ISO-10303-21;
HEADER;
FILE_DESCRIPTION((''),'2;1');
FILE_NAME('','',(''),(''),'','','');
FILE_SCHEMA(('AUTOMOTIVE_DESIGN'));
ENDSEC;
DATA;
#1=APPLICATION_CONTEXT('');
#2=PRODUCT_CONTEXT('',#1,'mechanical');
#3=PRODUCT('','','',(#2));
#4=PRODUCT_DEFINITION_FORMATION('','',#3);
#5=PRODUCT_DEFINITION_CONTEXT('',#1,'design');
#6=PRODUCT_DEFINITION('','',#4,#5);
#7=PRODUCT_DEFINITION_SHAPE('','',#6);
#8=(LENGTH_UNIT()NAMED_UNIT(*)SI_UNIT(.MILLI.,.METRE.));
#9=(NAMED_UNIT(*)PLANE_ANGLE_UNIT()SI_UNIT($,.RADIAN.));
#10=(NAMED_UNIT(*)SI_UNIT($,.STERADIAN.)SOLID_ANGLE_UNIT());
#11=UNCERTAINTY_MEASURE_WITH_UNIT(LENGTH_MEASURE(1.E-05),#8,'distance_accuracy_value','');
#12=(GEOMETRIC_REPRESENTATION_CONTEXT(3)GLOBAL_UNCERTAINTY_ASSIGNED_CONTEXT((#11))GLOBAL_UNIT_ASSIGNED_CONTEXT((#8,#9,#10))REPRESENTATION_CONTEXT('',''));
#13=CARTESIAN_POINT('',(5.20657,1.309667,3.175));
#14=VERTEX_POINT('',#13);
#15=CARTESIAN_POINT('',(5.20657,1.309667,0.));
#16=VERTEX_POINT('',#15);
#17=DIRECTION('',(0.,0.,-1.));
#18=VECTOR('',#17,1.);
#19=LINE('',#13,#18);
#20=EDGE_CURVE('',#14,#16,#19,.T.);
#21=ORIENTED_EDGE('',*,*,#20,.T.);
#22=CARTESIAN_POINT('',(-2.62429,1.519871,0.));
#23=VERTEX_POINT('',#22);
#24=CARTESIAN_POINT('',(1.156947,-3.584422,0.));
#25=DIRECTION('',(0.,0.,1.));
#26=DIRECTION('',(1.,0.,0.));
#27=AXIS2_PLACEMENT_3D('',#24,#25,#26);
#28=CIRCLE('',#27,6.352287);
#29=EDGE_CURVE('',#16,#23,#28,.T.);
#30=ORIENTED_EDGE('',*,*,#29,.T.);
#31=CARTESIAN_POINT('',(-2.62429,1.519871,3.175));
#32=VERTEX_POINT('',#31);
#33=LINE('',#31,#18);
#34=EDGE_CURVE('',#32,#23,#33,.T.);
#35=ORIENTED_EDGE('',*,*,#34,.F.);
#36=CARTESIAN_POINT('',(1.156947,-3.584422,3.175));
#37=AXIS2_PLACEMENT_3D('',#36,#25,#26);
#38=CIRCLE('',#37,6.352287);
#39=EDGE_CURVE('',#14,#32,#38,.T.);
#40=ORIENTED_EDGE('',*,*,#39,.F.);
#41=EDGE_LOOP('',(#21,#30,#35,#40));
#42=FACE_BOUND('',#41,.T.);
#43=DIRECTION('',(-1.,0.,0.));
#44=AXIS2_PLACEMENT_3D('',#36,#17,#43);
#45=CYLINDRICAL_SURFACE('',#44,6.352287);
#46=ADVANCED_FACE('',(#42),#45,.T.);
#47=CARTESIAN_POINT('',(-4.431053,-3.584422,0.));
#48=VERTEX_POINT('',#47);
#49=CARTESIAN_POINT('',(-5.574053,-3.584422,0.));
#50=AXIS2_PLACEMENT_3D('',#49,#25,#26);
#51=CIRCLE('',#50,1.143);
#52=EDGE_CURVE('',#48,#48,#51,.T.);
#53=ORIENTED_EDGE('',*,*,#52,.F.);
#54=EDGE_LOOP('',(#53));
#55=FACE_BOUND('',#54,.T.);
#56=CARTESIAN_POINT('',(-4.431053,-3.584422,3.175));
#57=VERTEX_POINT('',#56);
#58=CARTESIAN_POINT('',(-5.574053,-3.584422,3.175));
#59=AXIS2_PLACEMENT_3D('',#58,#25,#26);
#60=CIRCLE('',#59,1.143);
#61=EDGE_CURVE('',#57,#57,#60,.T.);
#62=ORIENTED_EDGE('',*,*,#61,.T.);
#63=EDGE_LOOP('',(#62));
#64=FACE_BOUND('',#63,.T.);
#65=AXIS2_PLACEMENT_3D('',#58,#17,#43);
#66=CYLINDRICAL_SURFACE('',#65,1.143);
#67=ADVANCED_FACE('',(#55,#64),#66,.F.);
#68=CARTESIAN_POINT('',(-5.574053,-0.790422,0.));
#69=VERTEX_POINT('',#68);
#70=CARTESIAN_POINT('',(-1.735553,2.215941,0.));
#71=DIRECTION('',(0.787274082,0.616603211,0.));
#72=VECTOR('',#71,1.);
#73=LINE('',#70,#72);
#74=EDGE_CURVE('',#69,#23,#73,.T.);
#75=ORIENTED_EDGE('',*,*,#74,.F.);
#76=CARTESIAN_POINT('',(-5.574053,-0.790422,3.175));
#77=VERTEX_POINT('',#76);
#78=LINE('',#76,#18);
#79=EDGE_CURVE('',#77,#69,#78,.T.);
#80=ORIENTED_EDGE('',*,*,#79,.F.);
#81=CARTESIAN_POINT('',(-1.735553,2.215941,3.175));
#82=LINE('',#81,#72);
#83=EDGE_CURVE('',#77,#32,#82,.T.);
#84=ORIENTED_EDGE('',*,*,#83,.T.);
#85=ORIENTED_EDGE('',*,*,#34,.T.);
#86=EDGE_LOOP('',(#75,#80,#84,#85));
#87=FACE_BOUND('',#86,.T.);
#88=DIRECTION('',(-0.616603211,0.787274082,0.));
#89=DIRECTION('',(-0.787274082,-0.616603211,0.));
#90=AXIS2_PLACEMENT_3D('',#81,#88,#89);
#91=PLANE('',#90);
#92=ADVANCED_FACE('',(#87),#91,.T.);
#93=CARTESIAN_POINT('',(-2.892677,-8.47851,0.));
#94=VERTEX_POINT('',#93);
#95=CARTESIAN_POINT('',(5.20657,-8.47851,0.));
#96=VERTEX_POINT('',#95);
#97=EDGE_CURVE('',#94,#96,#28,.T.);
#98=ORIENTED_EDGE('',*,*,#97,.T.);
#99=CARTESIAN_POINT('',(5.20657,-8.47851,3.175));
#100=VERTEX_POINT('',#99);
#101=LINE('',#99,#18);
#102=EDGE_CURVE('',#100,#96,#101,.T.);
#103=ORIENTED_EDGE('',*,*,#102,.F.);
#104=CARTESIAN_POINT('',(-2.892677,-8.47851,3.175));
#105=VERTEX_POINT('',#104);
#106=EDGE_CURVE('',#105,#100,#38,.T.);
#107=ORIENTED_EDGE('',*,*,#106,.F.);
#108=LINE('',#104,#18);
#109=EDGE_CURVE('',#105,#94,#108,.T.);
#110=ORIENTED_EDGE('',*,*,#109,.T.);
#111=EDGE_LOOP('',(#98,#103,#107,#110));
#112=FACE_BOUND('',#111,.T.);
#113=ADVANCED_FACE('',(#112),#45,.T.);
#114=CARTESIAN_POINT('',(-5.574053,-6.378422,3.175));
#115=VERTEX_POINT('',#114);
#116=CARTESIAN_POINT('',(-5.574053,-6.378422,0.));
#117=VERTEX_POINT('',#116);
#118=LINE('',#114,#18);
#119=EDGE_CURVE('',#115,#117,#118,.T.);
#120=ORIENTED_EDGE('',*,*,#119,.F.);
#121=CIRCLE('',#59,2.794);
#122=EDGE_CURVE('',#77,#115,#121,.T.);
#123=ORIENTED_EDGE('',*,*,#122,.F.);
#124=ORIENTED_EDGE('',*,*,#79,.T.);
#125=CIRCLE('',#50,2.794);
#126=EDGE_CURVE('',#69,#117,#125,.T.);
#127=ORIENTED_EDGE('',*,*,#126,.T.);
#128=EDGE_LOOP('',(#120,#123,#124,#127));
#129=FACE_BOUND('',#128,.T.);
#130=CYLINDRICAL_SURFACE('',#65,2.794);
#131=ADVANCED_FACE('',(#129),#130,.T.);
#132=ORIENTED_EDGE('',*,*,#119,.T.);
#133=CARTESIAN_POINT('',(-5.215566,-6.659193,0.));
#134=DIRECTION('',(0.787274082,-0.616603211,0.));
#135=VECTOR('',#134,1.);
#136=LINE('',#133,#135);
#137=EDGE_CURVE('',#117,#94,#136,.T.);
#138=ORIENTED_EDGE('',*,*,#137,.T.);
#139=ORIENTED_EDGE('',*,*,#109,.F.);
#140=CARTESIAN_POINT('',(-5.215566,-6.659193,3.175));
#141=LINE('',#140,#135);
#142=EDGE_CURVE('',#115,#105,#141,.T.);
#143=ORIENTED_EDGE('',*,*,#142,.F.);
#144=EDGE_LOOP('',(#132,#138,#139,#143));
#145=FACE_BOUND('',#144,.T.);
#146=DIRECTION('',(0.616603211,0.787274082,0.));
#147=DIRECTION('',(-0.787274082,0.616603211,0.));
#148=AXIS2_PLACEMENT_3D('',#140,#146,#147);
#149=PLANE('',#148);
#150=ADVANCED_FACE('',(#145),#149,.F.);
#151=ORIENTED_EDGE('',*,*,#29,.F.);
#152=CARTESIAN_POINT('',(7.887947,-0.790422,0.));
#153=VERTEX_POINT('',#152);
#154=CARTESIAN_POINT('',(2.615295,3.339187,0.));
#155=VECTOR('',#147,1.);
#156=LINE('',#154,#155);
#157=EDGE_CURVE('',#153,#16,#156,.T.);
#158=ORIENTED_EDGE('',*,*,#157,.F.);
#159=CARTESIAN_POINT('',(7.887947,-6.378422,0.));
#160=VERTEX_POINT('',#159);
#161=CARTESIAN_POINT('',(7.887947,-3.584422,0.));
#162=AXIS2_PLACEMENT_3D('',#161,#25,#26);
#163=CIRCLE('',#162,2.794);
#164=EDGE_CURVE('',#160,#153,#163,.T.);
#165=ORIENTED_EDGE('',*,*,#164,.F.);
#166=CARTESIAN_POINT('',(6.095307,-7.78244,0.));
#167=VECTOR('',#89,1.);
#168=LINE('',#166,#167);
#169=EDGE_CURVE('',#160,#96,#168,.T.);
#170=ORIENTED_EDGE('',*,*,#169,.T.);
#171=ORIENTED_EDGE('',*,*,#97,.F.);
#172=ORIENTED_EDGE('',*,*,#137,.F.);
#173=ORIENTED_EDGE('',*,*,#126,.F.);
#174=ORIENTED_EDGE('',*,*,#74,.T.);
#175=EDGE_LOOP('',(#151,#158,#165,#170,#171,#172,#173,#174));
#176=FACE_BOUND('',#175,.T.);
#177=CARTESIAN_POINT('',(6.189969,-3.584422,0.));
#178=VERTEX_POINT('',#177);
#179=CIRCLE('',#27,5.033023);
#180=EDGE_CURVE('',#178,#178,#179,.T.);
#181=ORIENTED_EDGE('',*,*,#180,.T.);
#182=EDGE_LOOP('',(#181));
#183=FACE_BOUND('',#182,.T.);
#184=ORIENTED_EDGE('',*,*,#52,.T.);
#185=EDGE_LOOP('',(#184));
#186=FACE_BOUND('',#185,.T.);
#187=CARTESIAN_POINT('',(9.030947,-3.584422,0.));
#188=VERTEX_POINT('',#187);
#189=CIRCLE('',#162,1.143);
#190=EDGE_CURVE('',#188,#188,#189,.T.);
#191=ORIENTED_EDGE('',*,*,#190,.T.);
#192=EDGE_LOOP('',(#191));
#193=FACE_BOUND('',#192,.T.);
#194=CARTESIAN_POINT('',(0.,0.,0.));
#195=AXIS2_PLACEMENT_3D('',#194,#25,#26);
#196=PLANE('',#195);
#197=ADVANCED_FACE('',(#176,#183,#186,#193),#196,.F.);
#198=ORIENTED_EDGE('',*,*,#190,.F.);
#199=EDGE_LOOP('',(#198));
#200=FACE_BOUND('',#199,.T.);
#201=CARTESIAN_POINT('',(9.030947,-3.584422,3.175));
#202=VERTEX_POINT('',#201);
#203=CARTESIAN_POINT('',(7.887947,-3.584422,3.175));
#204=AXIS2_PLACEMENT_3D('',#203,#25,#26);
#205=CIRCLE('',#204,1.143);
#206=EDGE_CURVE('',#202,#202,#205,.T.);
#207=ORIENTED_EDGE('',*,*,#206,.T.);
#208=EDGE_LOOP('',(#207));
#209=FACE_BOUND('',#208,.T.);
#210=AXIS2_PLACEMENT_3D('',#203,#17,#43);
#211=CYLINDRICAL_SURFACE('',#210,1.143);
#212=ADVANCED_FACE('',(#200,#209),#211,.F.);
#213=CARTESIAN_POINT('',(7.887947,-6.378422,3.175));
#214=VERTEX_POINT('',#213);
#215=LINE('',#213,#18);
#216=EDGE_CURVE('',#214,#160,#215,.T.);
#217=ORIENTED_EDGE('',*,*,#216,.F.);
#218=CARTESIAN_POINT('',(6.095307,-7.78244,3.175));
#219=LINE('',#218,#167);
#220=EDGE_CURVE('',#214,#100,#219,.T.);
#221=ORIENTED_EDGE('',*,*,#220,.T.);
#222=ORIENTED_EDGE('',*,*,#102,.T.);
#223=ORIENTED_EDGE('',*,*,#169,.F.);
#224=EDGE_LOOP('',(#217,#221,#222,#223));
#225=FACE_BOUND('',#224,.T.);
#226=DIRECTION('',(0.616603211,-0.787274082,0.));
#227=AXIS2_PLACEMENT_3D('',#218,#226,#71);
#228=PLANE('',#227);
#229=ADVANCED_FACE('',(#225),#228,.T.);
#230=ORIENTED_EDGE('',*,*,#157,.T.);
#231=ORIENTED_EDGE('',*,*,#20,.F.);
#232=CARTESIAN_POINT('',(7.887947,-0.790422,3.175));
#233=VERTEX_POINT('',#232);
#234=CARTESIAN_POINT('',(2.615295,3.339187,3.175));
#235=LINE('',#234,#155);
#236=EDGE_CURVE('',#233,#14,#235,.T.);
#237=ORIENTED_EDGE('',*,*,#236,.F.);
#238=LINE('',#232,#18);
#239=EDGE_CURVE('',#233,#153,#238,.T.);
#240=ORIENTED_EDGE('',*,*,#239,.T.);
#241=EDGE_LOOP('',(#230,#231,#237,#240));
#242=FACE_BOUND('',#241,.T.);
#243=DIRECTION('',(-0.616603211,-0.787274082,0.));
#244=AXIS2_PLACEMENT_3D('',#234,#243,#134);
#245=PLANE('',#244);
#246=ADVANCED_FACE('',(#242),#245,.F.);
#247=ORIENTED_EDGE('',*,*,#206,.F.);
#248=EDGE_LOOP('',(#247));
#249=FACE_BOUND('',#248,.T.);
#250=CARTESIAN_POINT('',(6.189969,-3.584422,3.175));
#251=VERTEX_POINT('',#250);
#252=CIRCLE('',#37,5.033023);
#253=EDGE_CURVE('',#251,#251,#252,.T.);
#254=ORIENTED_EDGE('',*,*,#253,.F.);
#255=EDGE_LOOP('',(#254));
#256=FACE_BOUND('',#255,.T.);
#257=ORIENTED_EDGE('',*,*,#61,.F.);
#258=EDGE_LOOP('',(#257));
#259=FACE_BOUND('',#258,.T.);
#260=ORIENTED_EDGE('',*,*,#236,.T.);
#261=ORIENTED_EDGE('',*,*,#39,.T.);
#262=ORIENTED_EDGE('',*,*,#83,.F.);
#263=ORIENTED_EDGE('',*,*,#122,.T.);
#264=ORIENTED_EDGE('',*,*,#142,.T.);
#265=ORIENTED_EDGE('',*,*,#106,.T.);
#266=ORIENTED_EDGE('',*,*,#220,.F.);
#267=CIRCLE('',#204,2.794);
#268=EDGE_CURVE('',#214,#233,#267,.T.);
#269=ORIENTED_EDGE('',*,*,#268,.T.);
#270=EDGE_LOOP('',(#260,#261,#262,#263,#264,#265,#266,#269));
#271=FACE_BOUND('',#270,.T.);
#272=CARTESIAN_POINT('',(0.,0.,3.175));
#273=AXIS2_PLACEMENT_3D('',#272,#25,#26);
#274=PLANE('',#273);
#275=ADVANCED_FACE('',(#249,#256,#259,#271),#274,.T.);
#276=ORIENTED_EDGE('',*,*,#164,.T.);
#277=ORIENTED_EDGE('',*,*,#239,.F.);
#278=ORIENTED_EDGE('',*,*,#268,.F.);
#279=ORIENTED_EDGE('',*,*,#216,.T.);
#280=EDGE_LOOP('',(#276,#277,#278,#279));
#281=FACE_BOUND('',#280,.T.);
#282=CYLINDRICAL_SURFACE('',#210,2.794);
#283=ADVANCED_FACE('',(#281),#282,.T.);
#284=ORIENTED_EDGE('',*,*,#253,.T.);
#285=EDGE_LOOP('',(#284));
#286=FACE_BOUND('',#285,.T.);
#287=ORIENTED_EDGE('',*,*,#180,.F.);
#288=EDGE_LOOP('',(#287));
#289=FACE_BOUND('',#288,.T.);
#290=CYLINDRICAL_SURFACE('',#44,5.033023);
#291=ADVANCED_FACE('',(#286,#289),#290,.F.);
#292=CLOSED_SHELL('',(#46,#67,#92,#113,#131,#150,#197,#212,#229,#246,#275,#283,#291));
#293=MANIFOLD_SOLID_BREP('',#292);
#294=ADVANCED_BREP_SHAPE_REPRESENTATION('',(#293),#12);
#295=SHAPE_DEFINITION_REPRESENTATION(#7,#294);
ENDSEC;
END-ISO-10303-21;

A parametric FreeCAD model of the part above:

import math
import FreeCAD as App
import Part
import Sketcher
from FreeCAD import Vector
Q = App.Units.Quantity

doc = App.newDocument("Part")
params = doc.addObject("Spreadsheet::Sheet", "Params")
for row, (alias, value) in enumerate([
    ("sketch1_diameter", "0.09 in"),
    ("sketch1_radius", "0.11 in"),
    ("pad1_length", "0.125 in"),
], start=1):
    params.set(f"A{row}", alias)
    params.set(f"B{row}", "=" + value)
    params.setAlias(f"B{row}", alias)

body = doc.addObject("PartDesign::Body", "Body")

# Sketch on XY plane
sketch1 = body.newObject("Sketcher::SketchObject", "Sketch")
sketch1.AttachmentSupport = (doc.getObject("XY_Plane"), [""])
sketch1.MapMode = "FlatFace"
sketch1.addGeometry([
    Part.LineSegment(Vector(-2.758484, 1.414769, 0), Vector(-5.574053, -0.790422, 0)),  # 0
    Part.ArcOfCircle(Part.Circle(Vector(-5.574053, -3.584422, 0), Vector(0, 0, 1), 2.794), math.radians(90), math.radians(270)),  # 1
    Part.LineSegment(Vector(-5.574053, -6.378422, 0), Vector(-2.892677, -8.47851, 0)),  # 2
    Part.ArcOfCircle(Part.Circle(Vector(1.156947, -3.584422, 0), Vector(0, 0, 1), 6.352287), math.radians(-129.606127), math.radians(-50.393873)),  # 3
    Part.LineSegment(Vector(5.20657, -8.47851, 0), Vector(7.887947, -6.378422, 0)),  # 4
    Part.ArcOfCircle(Part.Circle(Vector(7.887947, -3.584422, 0), Vector(0, 0, 1), 2.794), math.radians(-90), math.radians(90)),  # 5
    Part.LineSegment(Vector(7.887947, -0.790422, 0), Vector(5.20657, 1.309667, 0)),  # 6
    Part.ArcOfCircle(Part.Circle(Vector(1.156947, -3.584422, 0), Vector(0, 0, 1), 6.352287), math.radians(50.393873), math.radians(126.530883)),  # 7
    Part.LineSegment(Vector(-2.62429, 1.519871, 0), Vector(-2.758484, 1.414769, 0)),  # 8
    Part.Circle(Vector(-5.574053, -3.584422, 0), Vector(0, 0, 1), 1.143),  # 9
    Part.Circle(Vector(1.156947, -3.584422, 0), Vector(0, 0, 1), 5.033023),  # 10
    Part.Circle(Vector(7.887947, -3.584422, 0), Vector(0, 0, 1), 1.143),  # 11
], False)
sketch1.addConstraint([
    Sketcher.Constraint("Coincident", 0, 2, 1, 1),
    Sketcher.Constraint("Coincident", 1, 2, 2, 1),
    Sketcher.Constraint("Coincident", 2, 2, 3, 1),
    Sketcher.Constraint("Coincident", 3, 2, 4, 1),
    Sketcher.Constraint("Coincident", 4, 2, 5, 1),
    Sketcher.Constraint("Coincident", 5, 2, 6, 1),
    Sketcher.Constraint("Coincident", 6, 2, 7, 1),
    Sketcher.Constraint("Coincident", 7, 2, 8, 1),
    Sketcher.Constraint("Coincident", 8, 2, 0, 1),
    Sketcher.Constraint("Coincident", 7, 3, 3, 3),
    Sketcher.Constraint("Coincident", 9, 3, 1, 3),
    Sketcher.Constraint("Coincident", 10, 3, 3, 3),
    Sketcher.Constraint("Coincident", 11, 3, 5, 3),
    Sketcher.Constraint("Equal", 1, 5),
    Sketcher.Constraint("Equal", 3, 7),
    Sketcher.Constraint("Equal", 9, 11),
    Sketcher.Constraint("Parallel", 0, 4),
    Sketcher.Constraint("Parallel", 2, 6),
    Sketcher.Constraint("Parallel", 4, 8),
    Sketcher.Constraint("Horizontal", 1, 3, 3, 3),
    Sketcher.Constraint("Horizontal", 3, 3, 5, 3),
    Sketcher.Constraint("Horizontal", 2, 2, 3, 2),
    Sketcher.Constraint("Vertical", 9, 3, 0, 2),
    Sketcher.Constraint("Vertical", 0, 2, 1, 2),
    Sketcher.Constraint("Vertical", 11, 3, 4, 2),
    Sketcher.Constraint("Vertical", 4, 2, 5, 2),
    Sketcher.Constraint("Vertical", 3, 2, 6, 2),
    Sketcher.Constraint("Diameter", 9, Q("0.09 in")),
    Sketcher.Constraint("Radius", 1, Q("0.11 in")),
    Sketcher.Constraint("DistanceX", 1, 3, 5, 3, Q("0.53 in")),
    Sketcher.Constraint("Diameter", 10, Q("10.066045 mm")),
    Sketcher.Constraint("Radius", 3, Q("6.352287 mm")),
    Sketcher.Constraint("Distance", 2, Q("3.405899 mm")),
    Sketcher.Constraint("DistanceY", 8, 2, 7, 2, Q("0.105102 mm")),
    Sketcher.Constraint("DistanceY", 1, 3, -1, 1, Q("3.584422 mm")),
    Sketcher.Constraint("DistanceX", -1, 1, 3, 2, Q("5.20657 mm")),
])
sketch1.setExpression("Constraints[27]", "Params.sketch1_diameter")
sketch1.setExpression("Constraints[28]", "Params.sketch1_radius")
pad1 = body.newObject("PartDesign::Pad", "Pad")
pad1.Profile = sketch1
pad1.setExpression("Length", "Params.pad1_length")

doc.recompute()
